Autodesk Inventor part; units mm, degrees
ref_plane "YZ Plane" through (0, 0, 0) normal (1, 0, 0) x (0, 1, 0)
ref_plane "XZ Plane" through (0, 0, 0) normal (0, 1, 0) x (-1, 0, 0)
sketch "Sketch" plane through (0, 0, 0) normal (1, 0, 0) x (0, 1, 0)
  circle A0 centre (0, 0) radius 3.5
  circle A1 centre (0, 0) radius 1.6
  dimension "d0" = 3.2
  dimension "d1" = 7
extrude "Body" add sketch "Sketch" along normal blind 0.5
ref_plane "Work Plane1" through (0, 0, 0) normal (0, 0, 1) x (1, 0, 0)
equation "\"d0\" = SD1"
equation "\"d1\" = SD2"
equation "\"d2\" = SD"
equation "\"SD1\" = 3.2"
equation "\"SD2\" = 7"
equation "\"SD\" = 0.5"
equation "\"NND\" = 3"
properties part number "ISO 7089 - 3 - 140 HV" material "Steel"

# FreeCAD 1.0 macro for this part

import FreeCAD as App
import Part
import Sketcher
Q = App.Units.Quantity

doc = App.newDocument("Part")
body = doc.addObject("PartDesign::Body", "Body")

sketch1 = doc.addObject("Sketcher::SketchObject", "Sketch")
body.addObject(sketch1)
sketch1.AttachmentSupport = (doc.YZ_Plane, [""])
sketch1.MapMode = "FlatFace"
sketch1.addGeometry([
    Part.Circle(App.Vector(0, 0, 0), App.Vector(0, 0, 1), 3.5),
    Part.Circle(App.Vector(0, 0, 0), App.Vector(0, 0, 1), 1.6),
], False)
sketch1.addConstraint([
    Sketcher.Constraint("Coincident", 0, 3, -1, 1),
    Sketcher.Constraint("Coincident", 1, 3, -1, 1),
    Sketcher.Constraint("Diameter", 0, Q("7 mm")),
    Sketcher.Constraint("Diameter", 1, Q("3.2 mm")),
])
pad1 = doc.addObject("PartDesign::Pad", "Pad")
body.addObject(pad1)
pad1.Profile = sketch1
pad1.Length = 0.5

doc.recompute()
